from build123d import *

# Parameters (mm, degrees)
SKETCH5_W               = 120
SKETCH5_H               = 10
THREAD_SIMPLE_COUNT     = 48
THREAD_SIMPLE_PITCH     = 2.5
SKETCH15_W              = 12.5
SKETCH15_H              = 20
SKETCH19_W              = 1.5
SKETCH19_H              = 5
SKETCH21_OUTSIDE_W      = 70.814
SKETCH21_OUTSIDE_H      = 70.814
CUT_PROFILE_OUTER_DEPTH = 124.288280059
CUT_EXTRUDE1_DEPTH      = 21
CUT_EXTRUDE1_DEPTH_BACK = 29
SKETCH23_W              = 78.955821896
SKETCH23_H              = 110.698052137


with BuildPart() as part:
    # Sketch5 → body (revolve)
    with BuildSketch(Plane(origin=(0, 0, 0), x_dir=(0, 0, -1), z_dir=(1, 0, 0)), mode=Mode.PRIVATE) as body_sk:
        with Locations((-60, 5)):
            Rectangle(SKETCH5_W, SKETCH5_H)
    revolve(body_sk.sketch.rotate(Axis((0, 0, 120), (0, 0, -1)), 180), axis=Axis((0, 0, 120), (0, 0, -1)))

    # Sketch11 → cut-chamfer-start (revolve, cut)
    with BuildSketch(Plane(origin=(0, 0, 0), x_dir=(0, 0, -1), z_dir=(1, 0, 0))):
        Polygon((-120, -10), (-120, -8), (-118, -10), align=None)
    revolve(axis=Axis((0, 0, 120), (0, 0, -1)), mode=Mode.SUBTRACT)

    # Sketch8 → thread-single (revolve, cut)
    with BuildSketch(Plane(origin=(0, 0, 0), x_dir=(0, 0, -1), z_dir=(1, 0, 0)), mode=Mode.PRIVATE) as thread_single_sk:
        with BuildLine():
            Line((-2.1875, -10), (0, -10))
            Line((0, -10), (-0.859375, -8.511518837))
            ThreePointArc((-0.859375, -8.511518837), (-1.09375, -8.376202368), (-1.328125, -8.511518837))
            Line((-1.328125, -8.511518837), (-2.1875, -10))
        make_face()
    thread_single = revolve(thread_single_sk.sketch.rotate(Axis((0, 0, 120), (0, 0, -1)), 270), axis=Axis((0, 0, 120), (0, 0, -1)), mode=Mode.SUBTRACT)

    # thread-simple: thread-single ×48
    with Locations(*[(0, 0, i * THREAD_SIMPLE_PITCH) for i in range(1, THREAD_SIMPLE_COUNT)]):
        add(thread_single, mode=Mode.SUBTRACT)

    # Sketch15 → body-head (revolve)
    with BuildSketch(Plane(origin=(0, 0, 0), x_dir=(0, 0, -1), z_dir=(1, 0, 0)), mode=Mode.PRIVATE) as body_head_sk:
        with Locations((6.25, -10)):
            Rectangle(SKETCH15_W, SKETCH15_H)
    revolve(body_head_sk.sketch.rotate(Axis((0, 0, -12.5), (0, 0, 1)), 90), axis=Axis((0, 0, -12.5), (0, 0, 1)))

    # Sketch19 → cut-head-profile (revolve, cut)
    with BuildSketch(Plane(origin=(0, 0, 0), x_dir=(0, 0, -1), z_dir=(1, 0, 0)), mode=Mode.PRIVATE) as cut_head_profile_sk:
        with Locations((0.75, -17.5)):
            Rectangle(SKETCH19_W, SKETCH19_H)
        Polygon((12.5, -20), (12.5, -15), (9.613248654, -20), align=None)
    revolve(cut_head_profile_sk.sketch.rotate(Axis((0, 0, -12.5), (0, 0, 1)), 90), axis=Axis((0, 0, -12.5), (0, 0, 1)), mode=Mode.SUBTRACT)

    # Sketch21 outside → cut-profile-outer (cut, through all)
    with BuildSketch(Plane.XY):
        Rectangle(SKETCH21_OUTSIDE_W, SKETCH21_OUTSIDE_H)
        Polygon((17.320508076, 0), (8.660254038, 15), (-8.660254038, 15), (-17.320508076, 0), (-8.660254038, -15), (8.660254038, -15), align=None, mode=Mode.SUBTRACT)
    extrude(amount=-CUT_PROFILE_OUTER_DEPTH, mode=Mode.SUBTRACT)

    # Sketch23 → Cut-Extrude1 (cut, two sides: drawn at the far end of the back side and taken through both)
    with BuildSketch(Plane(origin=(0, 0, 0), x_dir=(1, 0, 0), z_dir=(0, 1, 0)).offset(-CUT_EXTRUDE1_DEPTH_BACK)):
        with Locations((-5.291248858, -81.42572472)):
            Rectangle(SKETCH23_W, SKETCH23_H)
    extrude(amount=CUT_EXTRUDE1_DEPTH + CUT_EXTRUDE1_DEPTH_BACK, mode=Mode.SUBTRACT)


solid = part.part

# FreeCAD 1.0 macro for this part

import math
import FreeCAD as App
import Part
import Sketcher

V = App.Vector
Q = App.Units.Quantity

doc = App.newDocument("Part")
body = doc.addObject("PartDesign::Body", "Body")

sketch1 = doc.addObject("Sketcher::SketchObject", "Sketch")
body.addObject(sketch1)
sketch1.AttachmentSupport = (doc.YZ_Plane, [""])
sketch1.MapMode = "FlatFace"
sketch1.addGeometry([
    Part.LineSegment(V(10, 120, 0), V(0, 120, 0)),
    Part.LineSegment(V(0, 120, 0), V(0, 0, 0)),
    Part.LineSegment(V(0, 0, 0), V(10, 0, 0)),
    Part.LineSegment(V(10, 0, 0), V(10, 120, 0)),
], False)
sketch1.addConstraint([
    Sketcher.Constraint("Coincident", 0, 2, 1, 1),
    Sketcher.Constraint("Coincident", 1, 2, 2, 1),
    Sketcher.Constraint("Coincident", 2, 2, 3, 1),
    Sketcher.Constraint("Coincident", 3, 2, 0, 1),
    Sketcher.Constraint("Horizontal", 0),
    Sketcher.Constraint("Vertical", 1),
    Sketcher.Constraint("Horizontal", 2),
    Sketcher.Constraint("Vertical", 3),
    Sketcher.Constraint("Coincident", 1, 2, -1, 1),
    Sketcher.Constraint("DistanceX", 0, 2, 0, 1, Q("10 mm")),
    Sketcher.Constraint("DistanceY", 1, 2, 1, 1, Q("120 mm")),
])
revolution = doc.addObject("PartDesign::Revolution", "Revolution")
body.addObject(revolution)
revolution.Profile = sketch1
revolution.ReferenceAxis = (sketch1, ["V_Axis"])
revolution.Angle = 360

sketch2 = doc.addObject("Sketcher::SketchObject", "Sketch001")
body.addObject(sketch2)
sketch2.AttachmentSupport = (doc.YZ_Plane, [""])
sketch2.MapMode = "FlatFace"
sketch2.addGeometry([
    Part.LineSegment(V(-8, 120, 0), V(-10, 120, 0)),
    Part.LineSegment(V(-10, 120, 0), V(-10, 118, 0)),
    Part.LineSegment(V(-10, 118, 0), V(-8, 120, 0)),
], False)
sketch2.addConstraint([
    Sketcher.Constraint("Coincident", 0, 2, 1, 1),
    Sketcher.Constraint("Coincident", 1, 2, 2, 1),
    Sketcher.Constraint("Coincident", 2, 2, 0, 1),
    Sketcher.Constraint("Horizontal", 0),
    Sketcher.Constraint("Vertical", 1),
    Sketcher.Constraint("Equal", 0, 1),
    Sketcher.Constraint("DistanceX", 0, 2, 0, 1, Q("2 mm")),
    Sketcher.Constraint("DistanceX", 0, 2, -1, 1, Q("10 mm")),
    Sketcher.Constraint("DistanceY", -1, 1, 0, 2, Q("120 mm")),
])
groove = doc.addObject("PartDesign::Groove", "Groove")
body.addObject(groove)
groove.Profile = sketch2
groove.ReferenceAxis = (sketch2, ["V_Axis"])
groove.Angle = 360

sketch3 = doc.addObject("Sketcher::SketchObject", "Sketch002")
body.addObject(sketch3)
sketch3.AttachmentSupport = (doc.YZ_Plane, [""])
sketch3.MapMode = "FlatFace"
sketch3.addGeometry([
    Part.LineSegment(V(-10, 2.19, 0), V(-10, 0, 0)),
    Part.LineSegment(V(-10, 0, 0), V(-8.51, 0.86, 0)),
    Part.ArcOfCircle(Part.Circle(V(-8.65, 1.09, 0), V(0, 0, 1), 0.27), math.radians(-60), math.radians(60)),
    Part.LineSegment(V(-8.51, 1.33, 0), V(-10, 2.19, 0)),
], False)
sketch3.addConstraint([
    Sketcher.Constraint("Coincident", 0, 2, 1, 1),
    Sketcher.Constraint("Tangent", 1, 2, 2, 1),
    Sketcher.Constraint("Tangent", 2, 2, 3, 1),
    Sketcher.Constraint("Coincident", 3, 2, 0, 1),
    Sketcher.Constraint("Vertical", 0),
    Sketcher.Constraint("PointOnObject", 0, 2, -1),
    Sketcher.Constraint("Vertical", 1, 2, 2, 2),
    Sketcher.Constraint("Angle", 1, Q("30 deg")),
    Sketcher.Constraint("DistanceX", 0, 2, -1, 1, Q("10 mm")),
    Sketcher.Constraint("DistanceY", 0, 2, 0, 1, Q("2.1875 mm")),
    Sketcher.Constraint("Radius", 2, Q("0.270633 mm")),
])
groove2 = doc.addObject("PartDesign::Groove", "Groove001")
body.addObject(groove2)
groove2.Profile = sketch3
groove2.ReferenceAxis = (sketch3, ["V_Axis"])
groove2.Angle = 360
doc.recompute()

linearpattern = doc.addObject("PartDesign::LinearPattern", "LinearPattern")
body.addObject(linearpattern)
linearpattern.Originals = [groove2]
linearpattern.Direction = (doc.Z_Axis, [""])
linearpattern.Mode = "offset"
linearpattern.Offset = 2.5
linearpattern.Occurrences = 48
body.Tip = linearpattern

sketch4 = doc.addObject("Sketcher::SketchObject", "Sketch003")
body.addObject(sketch4)
sketch4.AttachmentSupport = (doc.YZ_Plane, [""])
sketch4.MapMode = "FlatFace"
sketch4.addGeometry([
    Part.LineSegment(V(0, 0, 0), V(-20, 0, 0)),
    Part.LineSegment(V(-20, 0, 0), V(-20, -12, 0)),
    Part.LineSegment(V(-20, -12, 0), V(0, -12, 0)),
    Part.LineSegment(V(0, -12, 0), V(0, 0, 0)),
], False)
sketch4.addConstraint([
    Sketcher.Constraint("Coincident", 0, 2, 1, 1),
    Sketcher.Constraint("Coincident", 1, 2, 2, 1),
    Sketcher.Constraint("Coincident", 2, 2, 3, 1),
    Sketcher.Constraint("Coincident", 3, 2, 0, 1),
    Sketcher.Constraint("Horizontal", 0),
    Sketcher.Constraint("Vertical", 1),
    Sketcher.Constraint("Horizontal", 2),
    Sketcher.Constraint("Vertical", 3),
    Sketcher.Constraint("Coincident", 3, 2, -1, 1),
    Sketcher.Constraint("DistanceX", 0, 2, 0, 1, Q("20 mm")),
    Sketcher.Constraint("DistanceY", 1, 2, 1, 1, Q("12.5 mm")),
])
revolution2 = doc.addObject("PartDesign::Revolution", "Revolution001")
body.addObject(revolution2)
revolution2.Profile = sketch4
revolution2.ReferenceAxis = (sketch4, ["V_Axis"])
revolution2.Angle = 360

sketch5 = doc.addObject("Sketcher::SketchObject", "Sketch004")
body.addObject(sketch5)
sketch5.AttachmentSupport = (doc.YZ_Plane, [""])
sketch5.MapMode = "FlatFace"
sketch5.addGeometry([
    Part.LineSegment(V(-15, 0, 0), V(-20, 0, 0)),
    Part.LineSegment(V(-20, 0, 0), V(-20, -1.5, 0)),
    Part.LineSegment(V(-20, -1.5, 0), V(-15, -1.5, 0)),
    Part.LineSegment(V(-15, -1.5, 0), V(-15, 0, 0)),
    Part.LineSegment(V(-20, -12.5, 0), V(-15, -12.5, 0)),
    Part.LineSegment(V(-15, -12.5, 0), V(-20, -9.6, 0)),
    Part.LineSegment(V(-20, -9.6, 0), V(-20, -12.5, 0)),
], False)
sketch5.addConstraint([
    Sketcher.Constraint("Coincident", 0, 2, 1, 1),
    Sketcher.Constraint("Coincident", 1, 2, 2, 1),
    Sketcher.Constraint("Coincident", 2, 2, 3, 1),
    Sketcher.Constraint("Coincident", 3, 2, 0, 1),
    Sketcher.Constraint("Coincident", 4, 2, 5, 1),
    Sketcher.Constraint("Coincident", 5, 2, 6, 1),
    Sketcher.Constraint("Coincident", 6, 2, 4, 1),
    Sketcher.Constraint("Horizontal", 0),
    Sketcher.Constraint("Vertical", 1),
    Sketcher.Constraint("Horizontal", 2),
    Sketcher.Constraint("Vertical", 3),
    Sketcher.Constraint("Horizontal", 4),
    Sketcher.Constraint("Vertical", 6),
    Sketcher.Constraint("PointOnObject", 0, 2, -1),
    Sketcher.Constraint("Vertical", 3, 2, 4, 2),
    Sketcher.Constraint("Vertical", 1, 2, 5, 2),
    Sketcher.Constraint("DistanceX", 0, 2, 0, 1, Q("5 mm")),
    Sketcher.Constraint("Angle", 5, Q("150 deg")),
    Sketcher.Constraint("DistanceY", 1, 2, 1, 1, Q("1.5 mm")),
    Sketcher.Constraint("DistanceX", 0, 2, -1, 1, Q("20 mm")),
    Sketcher.Constraint("DistanceY", 4, 2, 2, 2, Q("11 mm")),
])
groove3 = doc.addObject("PartDesign::Groove", "Groove002")
body.addObject(groove3)
groove3.Profile = sketch5
groove3.ReferenceAxis = (sketch5, ["V_Axis"])
groove3.Angle = 360

sketch6 = doc.addObject("Sketcher::SketchObject", "Sketch005")
body.addObject(sketch6)
sketch6.AttachmentSupport = (doc.XY_Plane, [""])
sketch6.MapMode = "FlatFace"
sketch6.addGeometry([
    Part.LineSegment(V(-35, 35, 0), V(-35, -35, 0)),
    Part.LineSegment(V(-35, -35, 0), V(35, -35, 0)),
    Part.LineSegment(V(35, -35, 0), V(35, 35, 0)),
    Part.LineSegment(V(35, 35, 0), V(-35, 35, 0)),
    Part.LineSegment(V(9, 15, 0), V(17, 0, 0)),
    Part.LineSegment(V(17, 0, 0), V(9, -15, 0)),
    Part.LineSegment(V(9, -15, 0), V(-9, -15, 0)),
    Part.LineSegment(V(-9, -15, 0), V(-17, 0, 0)),
    Part.LineSegment(V(-17, 0, 0), V(-9, 15, 0)),
    Part.LineSegment(V(-9, 15, 0), V(9, 15, 0)),
], False)
sketch6.addConstraint([
    Sketcher.Constraint("Coincident", 0, 2, 1, 1),
    Sketcher.Constraint("Coincident", 1, 2, 2, 1),
    Sketcher.Constraint("Coincident", 2, 2, 3, 1),
    Sketcher.Constraint("Coincident", 3, 2, 0, 1),
    Sketcher.Constraint("Coincident", 4, 2, 5, 1),
    Sketcher.Constraint("Coincident", 5, 2, 6, 1),
    Sketcher.Constraint("Coincident", 6, 2, 7, 1),
    Sketcher.Constraint("Coincident", 7, 2, 8, 1),
    Sketcher.Constraint("Coincident", 8, 2, 9, 1),
    Sketcher.Constraint("Coincident", 9, 2, 4, 1),
    Sketcher.Constraint("Vertical", 0),
    Sketcher.Constraint("Horizontal", 1),
    Sketcher.Constraint("Vertical", 2),
    Sketcher.Constraint("Horizontal", 3),
    Sketcher.Constraint("Horizontal", 6),
    Sketcher.Constraint("Horizontal", 9),
    Sketcher.Constraint("Symmetric", 0, 2, 2, 2, -1, 1),
    Sketcher.Constraint("Symmetric", 4, 2, 7, 2, -1, 1),
    Sketcher.Constraint("Symmetric", 5, 2, 8, 2, -1, 1),
    Sketcher.Constraint("PointOnObject", 4, 2, -1),
    Sketcher.Constraint("Parallel", 4, 7),
    Sketcher.Constraint("Vertical", 6, 2, 8, 2),
    Sketcher.Constraint("Equal", 3, 0),
    Sketcher.Constraint("Angle", 4, Q("-60 deg")),
    Sketcher.Constraint("DistanceY", 5, 2, -1, 1, Q("15 mm")),
    Sketcher.Constraint("DistanceX", 1, 1, 1, 2, Q("70.814 mm")),
    Sketcher.Constraint("DistanceX", 6, 2, 6, 1, Q("17.320508 mm")),
])
pocket1 = doc.addObject("PartDesign::Pocket", "Pocket")
body.addObject(pocket1)
pocket1.Profile = sketch6
pocket1.Type = "ThroughAll"

sketch7 = doc.addObject("Sketcher::SketchObject", "Sketch006")
body.addObject(sketch7)
sketch7.AttachmentSupport = (doc.XZ_Plane, [""])
sketch7.MapMode = "FlatFace"
sketch7.addGeometry([
    Part.LineSegment(V(-45, 26, 0), V(-45, 137, 0)),
    Part.LineSegment(V(-45, 137, 0), V(34, 137, 0)),
    Part.LineSegment(V(34, 137, 0), V(34, 26, 0)),
    Part.LineSegment(V(34, 26, 0), V(-45, 26, 0)),
], False)
sketch7.addConstraint([
    Sketcher.Constraint("Coincident", 0, 2, 1, 1),
    Sketcher.Constraint("Coincident", 1, 2, 2, 1),
    Sketcher.Constraint("Coincident", 2, 2, 3, 1),
    Sketcher.Constraint("Coincident", 3, 2, 0, 1),
    Sketcher.Constraint("Vertical", 0),
    Sketcher.Constraint("Horizontal", 1),
    Sketcher.Constraint("Vertical", 2),
    Sketcher.Constraint("Horizontal", 3),
    Sketcher.Constraint("DistanceX", 1, 1, 1, 2, Q("78.955822 mm")),
    Sketcher.Constraint("DistanceY", -1, 1, 2, 2, Q("26.076699 mm")),
    Sketcher.Constraint("DistanceY", 0, 1, 0, 2, Q("110.698052 mm")),
    Sketcher.Constraint("DistanceX", 0, 2, -1, 1, Q("44.76916 mm")),
])
pocket2 = doc.addObject("PartDesign::Pocket", "Pocket001")
body.addObject(pocket2)
pocket2.Profile = sketch7
pocket2.Type = "ThroughAll"
pocket2.Midplane = True

doc.recompute()
